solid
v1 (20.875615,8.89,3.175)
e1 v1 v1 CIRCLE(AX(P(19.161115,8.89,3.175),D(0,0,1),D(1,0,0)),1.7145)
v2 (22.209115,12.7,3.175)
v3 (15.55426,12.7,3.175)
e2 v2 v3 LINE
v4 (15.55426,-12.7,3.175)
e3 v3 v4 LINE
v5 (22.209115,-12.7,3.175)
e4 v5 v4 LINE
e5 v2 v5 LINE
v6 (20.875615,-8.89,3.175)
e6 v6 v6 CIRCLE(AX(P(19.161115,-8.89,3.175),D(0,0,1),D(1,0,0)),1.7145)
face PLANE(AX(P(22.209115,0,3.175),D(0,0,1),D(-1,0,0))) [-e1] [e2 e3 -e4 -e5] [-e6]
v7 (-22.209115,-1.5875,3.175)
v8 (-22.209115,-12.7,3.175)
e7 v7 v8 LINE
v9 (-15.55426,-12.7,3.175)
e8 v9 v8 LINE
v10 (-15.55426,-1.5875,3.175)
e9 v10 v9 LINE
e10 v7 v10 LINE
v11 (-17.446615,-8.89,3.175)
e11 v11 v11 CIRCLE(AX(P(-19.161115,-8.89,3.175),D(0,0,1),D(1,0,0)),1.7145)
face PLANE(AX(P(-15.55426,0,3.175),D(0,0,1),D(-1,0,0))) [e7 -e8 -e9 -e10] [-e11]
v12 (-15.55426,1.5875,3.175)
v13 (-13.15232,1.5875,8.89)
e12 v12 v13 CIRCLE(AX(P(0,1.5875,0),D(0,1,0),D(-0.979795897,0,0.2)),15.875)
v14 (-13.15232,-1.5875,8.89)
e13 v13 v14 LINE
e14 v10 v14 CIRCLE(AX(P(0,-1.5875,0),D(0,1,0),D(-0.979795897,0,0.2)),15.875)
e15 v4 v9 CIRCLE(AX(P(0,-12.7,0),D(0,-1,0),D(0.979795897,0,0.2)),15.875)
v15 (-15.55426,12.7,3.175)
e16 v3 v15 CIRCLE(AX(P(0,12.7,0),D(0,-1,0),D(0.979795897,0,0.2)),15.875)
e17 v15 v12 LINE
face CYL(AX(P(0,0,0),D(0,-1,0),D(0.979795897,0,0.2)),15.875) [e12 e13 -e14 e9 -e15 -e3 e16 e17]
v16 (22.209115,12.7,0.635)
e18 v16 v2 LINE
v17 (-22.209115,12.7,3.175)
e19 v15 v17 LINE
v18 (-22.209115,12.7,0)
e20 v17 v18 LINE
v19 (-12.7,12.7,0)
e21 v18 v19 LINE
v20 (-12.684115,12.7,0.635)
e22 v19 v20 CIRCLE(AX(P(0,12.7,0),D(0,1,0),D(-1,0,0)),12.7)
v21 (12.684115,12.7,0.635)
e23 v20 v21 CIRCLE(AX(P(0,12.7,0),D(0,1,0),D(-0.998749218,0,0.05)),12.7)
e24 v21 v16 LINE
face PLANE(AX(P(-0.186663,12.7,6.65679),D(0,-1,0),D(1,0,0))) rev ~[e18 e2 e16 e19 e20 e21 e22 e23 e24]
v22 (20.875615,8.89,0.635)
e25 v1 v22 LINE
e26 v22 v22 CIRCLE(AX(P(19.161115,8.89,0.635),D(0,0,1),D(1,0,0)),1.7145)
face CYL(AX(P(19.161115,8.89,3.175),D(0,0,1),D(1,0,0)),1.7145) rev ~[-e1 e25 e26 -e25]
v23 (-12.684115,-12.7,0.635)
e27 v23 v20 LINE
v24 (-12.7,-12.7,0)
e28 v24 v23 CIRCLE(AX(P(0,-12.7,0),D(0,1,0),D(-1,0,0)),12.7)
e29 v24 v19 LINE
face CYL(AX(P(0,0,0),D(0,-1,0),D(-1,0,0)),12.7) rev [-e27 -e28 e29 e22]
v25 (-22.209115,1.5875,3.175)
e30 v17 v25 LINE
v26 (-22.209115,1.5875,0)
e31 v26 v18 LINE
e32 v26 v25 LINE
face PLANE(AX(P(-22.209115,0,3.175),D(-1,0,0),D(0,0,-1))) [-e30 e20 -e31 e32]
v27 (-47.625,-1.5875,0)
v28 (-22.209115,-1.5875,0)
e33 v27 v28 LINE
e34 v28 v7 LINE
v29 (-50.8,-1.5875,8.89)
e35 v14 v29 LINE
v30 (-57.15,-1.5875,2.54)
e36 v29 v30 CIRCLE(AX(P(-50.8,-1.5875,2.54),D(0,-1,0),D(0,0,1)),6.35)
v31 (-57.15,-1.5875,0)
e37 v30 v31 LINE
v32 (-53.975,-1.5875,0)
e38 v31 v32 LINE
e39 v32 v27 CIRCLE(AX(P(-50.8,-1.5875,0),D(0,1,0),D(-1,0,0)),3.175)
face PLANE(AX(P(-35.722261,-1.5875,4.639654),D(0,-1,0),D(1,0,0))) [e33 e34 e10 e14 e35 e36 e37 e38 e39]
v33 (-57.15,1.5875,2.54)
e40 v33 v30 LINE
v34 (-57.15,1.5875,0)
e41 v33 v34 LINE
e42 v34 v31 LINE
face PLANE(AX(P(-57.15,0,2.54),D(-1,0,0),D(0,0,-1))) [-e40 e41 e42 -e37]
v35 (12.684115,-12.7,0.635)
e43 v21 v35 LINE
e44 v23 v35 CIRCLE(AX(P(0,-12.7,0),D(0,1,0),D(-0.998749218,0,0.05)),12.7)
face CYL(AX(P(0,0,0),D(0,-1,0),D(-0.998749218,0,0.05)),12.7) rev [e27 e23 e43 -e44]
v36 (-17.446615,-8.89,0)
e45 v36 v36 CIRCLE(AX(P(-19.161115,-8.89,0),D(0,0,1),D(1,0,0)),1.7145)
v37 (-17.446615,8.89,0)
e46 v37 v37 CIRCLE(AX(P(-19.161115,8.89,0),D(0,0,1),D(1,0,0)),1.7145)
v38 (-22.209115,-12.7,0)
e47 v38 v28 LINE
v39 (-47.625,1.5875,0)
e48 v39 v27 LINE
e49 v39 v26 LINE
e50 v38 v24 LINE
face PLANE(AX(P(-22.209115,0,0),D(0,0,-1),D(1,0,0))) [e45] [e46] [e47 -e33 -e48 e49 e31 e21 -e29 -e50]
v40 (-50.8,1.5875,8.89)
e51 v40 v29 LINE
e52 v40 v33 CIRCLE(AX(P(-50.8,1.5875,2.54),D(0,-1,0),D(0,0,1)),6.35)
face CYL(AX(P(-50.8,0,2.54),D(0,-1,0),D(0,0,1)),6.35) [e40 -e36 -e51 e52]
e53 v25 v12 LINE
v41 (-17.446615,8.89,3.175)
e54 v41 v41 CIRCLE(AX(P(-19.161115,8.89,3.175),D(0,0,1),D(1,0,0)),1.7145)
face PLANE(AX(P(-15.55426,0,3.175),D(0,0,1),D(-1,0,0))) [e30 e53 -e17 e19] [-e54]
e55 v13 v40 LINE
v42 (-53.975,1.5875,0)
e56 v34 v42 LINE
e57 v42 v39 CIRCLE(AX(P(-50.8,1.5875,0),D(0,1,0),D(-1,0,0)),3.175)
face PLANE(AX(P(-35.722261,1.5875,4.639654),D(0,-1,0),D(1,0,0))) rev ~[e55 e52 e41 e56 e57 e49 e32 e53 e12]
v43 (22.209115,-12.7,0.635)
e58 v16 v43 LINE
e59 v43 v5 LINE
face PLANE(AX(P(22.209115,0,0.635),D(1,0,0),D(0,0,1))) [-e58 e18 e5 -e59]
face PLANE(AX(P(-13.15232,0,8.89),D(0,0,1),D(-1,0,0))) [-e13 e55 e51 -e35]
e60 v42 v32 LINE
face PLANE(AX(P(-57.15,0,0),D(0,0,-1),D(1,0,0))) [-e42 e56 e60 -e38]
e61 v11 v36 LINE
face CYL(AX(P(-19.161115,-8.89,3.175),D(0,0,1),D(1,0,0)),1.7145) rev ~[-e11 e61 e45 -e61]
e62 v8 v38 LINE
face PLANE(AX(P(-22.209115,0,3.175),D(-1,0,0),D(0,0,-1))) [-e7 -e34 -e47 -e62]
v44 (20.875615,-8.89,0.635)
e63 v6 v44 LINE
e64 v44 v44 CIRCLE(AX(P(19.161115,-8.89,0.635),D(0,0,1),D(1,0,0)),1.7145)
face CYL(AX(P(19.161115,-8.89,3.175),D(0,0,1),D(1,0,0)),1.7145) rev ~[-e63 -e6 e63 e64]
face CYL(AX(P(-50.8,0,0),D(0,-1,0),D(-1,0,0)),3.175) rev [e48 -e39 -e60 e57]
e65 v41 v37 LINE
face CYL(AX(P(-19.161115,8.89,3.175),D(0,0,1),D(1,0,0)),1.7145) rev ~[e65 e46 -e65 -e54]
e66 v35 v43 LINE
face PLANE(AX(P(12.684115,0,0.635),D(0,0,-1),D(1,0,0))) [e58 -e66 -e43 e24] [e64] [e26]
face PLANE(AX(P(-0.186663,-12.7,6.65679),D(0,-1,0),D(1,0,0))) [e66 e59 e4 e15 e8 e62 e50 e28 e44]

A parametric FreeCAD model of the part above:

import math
import FreeCAD as App
import Part
import Sketcher
from FreeCAD import Vector
Q = App.Units.Quantity

doc = App.newDocument("Part")
body = doc.addObject("PartDesign::Body", "Body")

# Sketch on XZ plane
sketch1 = doc.addObject("Sketcher::SketchObject", "Sketch")
body.addObject(sketch1)
sketch1.AttachmentSupport = (doc.XZ_Plane, [""])
sketch1.MapMode = "FlatFace"
sketch1.addGeometry([
    Part.ArcOfCircle(Part.Circle(Vector(0, 0, 0), Vector(0, 0, 1), 12.7), math.radians(3), math.radians(177)),  # 0
    Part.LineSegment(Vector(12.7, 0.6, 0), Vector(22.2, 0.6, 0)),  # 1
    Part.LineSegment(Vector(22.2, 0.6, 0), Vector(22.2, 3.2, 0)),  # 2
    Part.LineSegment(Vector(22.2, 3.2, 0), Vector(15.6, 3.2, 0)),  # 3
    Part.ArcOfCircle(Part.Circle(Vector(0, 0, 0), Vector(0, 0, 1), 15.9), math.radians(12), math.radians(168)),  # 4
    Part.LineSegment(Vector(-15.6, 3.2, 0), Vector(-22.2, 3.2, 0)),  # 5
    Part.LineSegment(Vector(-22.2, 3.2, 0), Vector(-22.2, 0, 0)),  # 6
    Part.LineSegment(Vector(-22.2, 0, 0), Vector(-12.7, 0, 0)),  # 7
    Part.ArcOfCircle(Part.Circle(Vector(0, 0, 0), Vector(0, 0, 1), 12.7), math.radians(177.13), math.radians(180)),  # 8
], False)
sketch1.addConstraint([
    Sketcher.Constraint("Coincident", 0, 1, 1, 1),
    Sketcher.Constraint("Coincident", 1, 2, 2, 1),
    Sketcher.Constraint("Coincident", 2, 2, 3, 1),
    Sketcher.Constraint("Coincident", 3, 2, 4, 1),
    Sketcher.Constraint("Coincident", 4, 2, 5, 1),
    Sketcher.Constraint("Coincident", 5, 2, 6, 1),
    Sketcher.Constraint("Coincident", 6, 2, 7, 1),
    Sketcher.Constraint("Coincident", 7, 2, 8, 2),
    Sketcher.Constraint("Tangent", 8, 1, 0, 2),
    Sketcher.Constraint("Horizontal", 1),
    Sketcher.Constraint("Vertical", 2),
    Sketcher.Constraint("Horizontal", 3),
    Sketcher.Constraint("Horizontal", 5),
    Sketcher.Constraint("Vertical", 6),
    Sketcher.Constraint("Horizontal", 7),
    Sketcher.Constraint("Coincident", 0, 3, -1, 1),
    Sketcher.Constraint("Coincident", 4, 3, -1, 1),
    Sketcher.Constraint("Equal", 0, 8),
    Sketcher.Constraint("Symmetric", 2, 2, 5, 2, -2),
    Sketcher.Constraint("PointOnObject", 6, 2, -1),
    Sketcher.Constraint("Horizontal", 1, 2, 8, 1),
    Sketcher.Constraint("Radius", 0, Q("0.5 in")),
    Sketcher.Constraint("DistanceY", 2, 1, 2, 2, Q("0.1 in")),
    Sketcher.Constraint("Radius", 4, Q("0.625 in")),
    Sketcher.Constraint("DistanceX", 1, 1, 1, 2, Q("0.375 in")),
    Sketcher.Constraint("DistanceY", 6, 2, 6, 1, Q("0.125 in")),
])
pad1 = doc.addObject("PartDesign::Pad", "Pad")
body.addObject(pad1)
pad1.Profile = sketch1
pad1.Length = Q("1 in")
pad1.Midplane = True

# Sketch on XZ plane
sketch2 = doc.addObject("Sketcher::SketchObject", "Sketch001")
body.addObject(sketch2)
sketch2.AttachmentSupport = (doc.XZ_Plane, [""])
sketch2.MapMode = "FlatFace"
sketch2.addGeometry([
    Part.ArcOfCircle(Part.Circle(Vector(0, 0, 0), Vector(0, 0, 1), 15.9), math.radians(146), math.radians(168)),  # 0
    Part.LineSegment(Vector(-13.2, 8.9, 0), Vector(-50.8, 8.9, 0)),  # 1
    Part.ArcOfCircle(Part.Circle(Vector(-50.8, 2.5, 0), Vector(0, 0, 1), 6.3), math.radians(90), math.radians(180)),  # 2
    Part.LineSegment(Vector(-57.1, 2.5, 0), Vector(-57.1, 0, 0)),  # 3
    Part.LineSegment(Vector(-57.1, 0, 0), Vector(-54, 0, 0)),  # 4
    Part.ArcOfCircle(Part.Circle(Vector(-50.8, 0, 0), Vector(0, 0, 1), 3.2), math.radians(0), math.radians(180)),  # 5
    Part.LineSegment(Vector(-47.6, 0, 0), Vector(-22.2, 0, 0)),  # 6
    Part.LineSegment(Vector(-22.2, 0, 0), Vector(-22.2, 3.2, 0)),  # 7
    Part.LineSegment(Vector(-22.2, 3.2, 0), Vector(-15.6, 3.2, 0)),  # 8
], False)
sketch2.addConstraint([
    Sketcher.Constraint("Coincident", 0, 1, 1, 1),
    Sketcher.Constraint("Tangent", 1, 2, 2, 1),
    Sketcher.Constraint("Tangent", 2, 2, 3, 1),
    Sketcher.Constraint("Coincident", 3, 2, 4, 1),
    Sketcher.Constraint("Coincident", 4, 2, 5, 2),
    Sketcher.Constraint("Coincident", 5, 1, 6, 1),
    Sketcher.Constraint("Coincident", 6, 2, 7, 1),
    Sketcher.Constraint("Coincident", 7, 2, 8, 1),
    Sketcher.Constraint("Coincident", 8, 2, 0, 2),
    Sketcher.Constraint("Horizontal", 1),
    Sketcher.Constraint("Vertical", 3),
    Sketcher.Constraint("Horizontal", 4),
    Sketcher.Constraint("Horizontal", 6),
    Sketcher.Constraint("Vertical", 7),
    Sketcher.Constraint("Horizontal", 8),
    Sketcher.Constraint("Coincident", 0, 3, -1, 1),
    Sketcher.Constraint("PointOnObject", 5, 3, -1),
    Sketcher.Constraint("PointOnObject", 3, 2, -1),
    Sketcher.Constraint("PointOnObject", 5, 1, -1),
    Sketcher.Constraint("Vertical", 2, 3, 5, 3),
    Sketcher.Constraint("Equal", 4, 7),
    Sketcher.Constraint("Radius", 2, Q("0.25 in")),
    Sketcher.Constraint("DistanceY", 3, 2, 3, 1, Q("0.1 in")),
    Sketcher.Constraint("DistanceX", 2, 3, -1, 1, Q("2 in")),
    Sketcher.Constraint("Radius", 0, Q("0.625 in")),
    Sketcher.Constraint("Radius", 5, Q("0.125 in")),
    Sketcher.Constraint("DistanceX", 6, 1, 6, 2, Q("25.415885 mm")),
])
pad2 = doc.addObject("PartDesign::Pad", "Pad001")
body.addObject(pad2)
pad2.Profile = sketch2
pad2.Length = Q("0.125 in")
pad2.Midplane = True

# Sketch on XY plane
sketch3 = doc.addObject("Sketcher::SketchObject", "Sketch002")
body.addObject(sketch3)
sketch3.AttachmentSupport = (doc.XY_Plane, [""])
sketch3.MapMode = "FlatFace"
sketch3.AttachmentOffset = App.Placement(Vector(0, 0, 0.125 * 25.4), App.Rotation())
sketch3.addGeometry([
    Part.Circle(Vector(19.2, 8.9, 0), Vector(0, 0, 1), 1.7),
    Part.Circle(Vector(19.2, -8.9, 0), Vector(0, 0, 1), 1.7),
    Part.Circle(Vector(-19.2, -8.9, 0), Vector(0, 0, 1), 1.7),
    Part.Circle(Vector(-19.2, 8.9, 0), Vector(0, 0, 1), 1.7),
], False)
sketch3.addConstraint([
    Sketcher.Constraint("Equal", 0, 1),
    Sketcher.Constraint("Equal", 1, 2),
    Sketcher.Constraint("Equal", 2, 3),
    Sketcher.Constraint("Symmetric", 0, 3, 2, 3, -1, 1),
    Sketcher.Constraint("Symmetric", 1, 3, 3, 3, -1, 1),
    Sketcher.Constraint("Symmetric", 1, 3, 2, 3, -2),
    Sketcher.Constraint("Diameter", 0, Q("0.135 in")),
    Sketcher.Constraint("DistanceY", 1, 3, 0, 3, Q("0.7 in")),
    Sketcher.Constraint("DistanceX", 2, 3, 1, 3, Q("38.32223 mm")),
])
pocket1 = doc.addObject("PartDesign::Pocket", "Pocket")
body.addObject(pocket1)
pocket1.Profile = sketch3
pocket1.Length = Q("1 in")

doc.recompute()
